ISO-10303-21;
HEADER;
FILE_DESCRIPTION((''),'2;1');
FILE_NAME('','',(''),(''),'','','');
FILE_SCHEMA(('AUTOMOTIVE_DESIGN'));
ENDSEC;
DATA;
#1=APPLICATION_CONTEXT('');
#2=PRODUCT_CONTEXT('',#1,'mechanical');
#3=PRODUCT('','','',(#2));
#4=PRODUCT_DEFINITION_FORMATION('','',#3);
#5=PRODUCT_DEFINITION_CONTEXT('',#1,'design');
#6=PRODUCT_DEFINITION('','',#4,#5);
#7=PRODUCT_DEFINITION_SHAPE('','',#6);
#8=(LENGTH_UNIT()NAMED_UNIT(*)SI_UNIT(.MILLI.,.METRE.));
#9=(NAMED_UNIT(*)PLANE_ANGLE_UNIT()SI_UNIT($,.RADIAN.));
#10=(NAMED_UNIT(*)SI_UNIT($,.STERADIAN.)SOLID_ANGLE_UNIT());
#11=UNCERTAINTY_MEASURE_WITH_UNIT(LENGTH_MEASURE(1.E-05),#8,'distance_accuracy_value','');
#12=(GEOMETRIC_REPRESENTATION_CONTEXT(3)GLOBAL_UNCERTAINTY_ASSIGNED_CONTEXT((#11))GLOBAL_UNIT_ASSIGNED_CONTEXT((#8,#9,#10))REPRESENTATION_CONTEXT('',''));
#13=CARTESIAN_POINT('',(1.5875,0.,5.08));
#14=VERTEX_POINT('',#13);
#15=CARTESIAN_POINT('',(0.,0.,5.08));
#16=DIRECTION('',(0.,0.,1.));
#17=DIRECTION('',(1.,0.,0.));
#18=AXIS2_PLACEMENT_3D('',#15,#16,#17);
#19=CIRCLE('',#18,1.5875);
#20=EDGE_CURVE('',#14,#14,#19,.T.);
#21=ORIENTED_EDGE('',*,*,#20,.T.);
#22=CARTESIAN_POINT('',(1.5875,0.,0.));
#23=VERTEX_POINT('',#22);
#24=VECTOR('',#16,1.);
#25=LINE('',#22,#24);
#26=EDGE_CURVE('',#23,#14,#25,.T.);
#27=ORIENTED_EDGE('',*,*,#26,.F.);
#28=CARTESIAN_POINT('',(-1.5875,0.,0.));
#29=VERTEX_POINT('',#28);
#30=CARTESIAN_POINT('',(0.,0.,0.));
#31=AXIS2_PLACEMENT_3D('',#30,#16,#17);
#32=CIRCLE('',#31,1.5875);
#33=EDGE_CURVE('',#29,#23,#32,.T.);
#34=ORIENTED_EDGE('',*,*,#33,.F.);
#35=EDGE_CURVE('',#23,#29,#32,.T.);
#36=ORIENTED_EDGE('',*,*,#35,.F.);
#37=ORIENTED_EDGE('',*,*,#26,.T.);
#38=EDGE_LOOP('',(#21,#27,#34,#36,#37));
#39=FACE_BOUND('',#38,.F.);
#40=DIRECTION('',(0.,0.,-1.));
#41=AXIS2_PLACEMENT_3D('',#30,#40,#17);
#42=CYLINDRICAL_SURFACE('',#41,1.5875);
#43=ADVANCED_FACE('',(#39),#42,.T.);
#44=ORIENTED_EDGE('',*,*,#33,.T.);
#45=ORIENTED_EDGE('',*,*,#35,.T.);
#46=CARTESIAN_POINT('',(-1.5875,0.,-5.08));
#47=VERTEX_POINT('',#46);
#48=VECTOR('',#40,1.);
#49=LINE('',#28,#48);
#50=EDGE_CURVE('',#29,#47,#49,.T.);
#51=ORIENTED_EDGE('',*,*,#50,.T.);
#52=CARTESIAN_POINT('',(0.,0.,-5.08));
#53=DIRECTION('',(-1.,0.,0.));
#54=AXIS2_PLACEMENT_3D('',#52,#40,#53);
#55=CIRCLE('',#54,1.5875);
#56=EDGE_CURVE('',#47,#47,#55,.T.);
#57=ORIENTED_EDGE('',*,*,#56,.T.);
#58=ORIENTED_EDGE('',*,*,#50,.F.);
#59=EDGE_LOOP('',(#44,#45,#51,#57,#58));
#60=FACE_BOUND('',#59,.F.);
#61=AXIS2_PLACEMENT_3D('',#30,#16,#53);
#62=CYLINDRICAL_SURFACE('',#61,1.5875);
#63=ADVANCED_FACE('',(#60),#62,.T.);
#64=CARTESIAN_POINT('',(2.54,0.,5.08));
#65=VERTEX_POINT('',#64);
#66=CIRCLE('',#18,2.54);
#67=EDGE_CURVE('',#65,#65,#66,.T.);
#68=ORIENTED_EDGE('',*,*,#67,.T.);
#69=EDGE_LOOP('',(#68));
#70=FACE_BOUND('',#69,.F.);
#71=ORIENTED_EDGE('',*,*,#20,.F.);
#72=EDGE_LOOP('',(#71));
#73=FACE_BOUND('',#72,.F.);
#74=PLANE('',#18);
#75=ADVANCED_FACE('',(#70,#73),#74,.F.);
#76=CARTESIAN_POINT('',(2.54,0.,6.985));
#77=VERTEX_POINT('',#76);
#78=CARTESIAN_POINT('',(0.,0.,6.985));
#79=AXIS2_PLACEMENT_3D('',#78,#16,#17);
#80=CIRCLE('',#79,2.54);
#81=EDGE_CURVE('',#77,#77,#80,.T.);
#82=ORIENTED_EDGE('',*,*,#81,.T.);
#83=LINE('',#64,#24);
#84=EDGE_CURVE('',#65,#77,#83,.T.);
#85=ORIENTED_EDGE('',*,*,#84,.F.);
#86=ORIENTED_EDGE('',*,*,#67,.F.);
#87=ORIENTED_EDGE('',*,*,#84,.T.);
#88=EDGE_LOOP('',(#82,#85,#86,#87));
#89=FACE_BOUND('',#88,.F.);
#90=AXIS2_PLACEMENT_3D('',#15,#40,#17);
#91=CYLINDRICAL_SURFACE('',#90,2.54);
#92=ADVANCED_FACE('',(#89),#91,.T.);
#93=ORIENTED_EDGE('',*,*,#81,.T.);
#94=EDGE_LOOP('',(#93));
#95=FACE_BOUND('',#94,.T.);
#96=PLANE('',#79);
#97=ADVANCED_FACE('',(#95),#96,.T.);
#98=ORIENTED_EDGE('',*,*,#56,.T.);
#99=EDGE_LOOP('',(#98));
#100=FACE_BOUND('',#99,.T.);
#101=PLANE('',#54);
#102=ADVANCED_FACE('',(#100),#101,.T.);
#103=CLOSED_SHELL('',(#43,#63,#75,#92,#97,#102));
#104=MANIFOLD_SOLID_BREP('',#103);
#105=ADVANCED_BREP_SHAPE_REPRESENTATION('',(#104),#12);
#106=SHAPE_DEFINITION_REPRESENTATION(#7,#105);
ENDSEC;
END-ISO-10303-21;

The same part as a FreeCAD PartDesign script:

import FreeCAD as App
import Part
import Sketcher
from FreeCAD import Vector
Q = App.Units.Quantity

doc = App.newDocument("Part")
body = doc.addObject("PartDesign::Body", "Body")

# Sketch on XY plane
sketch1 = body.newObject("Sketcher::SketchObject", "Sketch")
sketch1.AttachmentSupport = (doc.getObject("XY_Plane"), [""])
sketch1.MapMode = "FlatFace"
sketch1.addGeometry(Part.Circle(Vector(0, 0, 0), Vector(0, 0, 1), 1.6), False)
sketch1.addConstraint(Sketcher.Constraint("Coincident", 0, 3, -1, 1))
sketch1.addConstraint(Sketcher.Constraint("Diameter", 0, Q("0.125 in")))
pad1 = body.newObject("PartDesign::Pad", "Pad")
pad1.Profile = sketch1
pad1.Length = Q("0.2 in")

# Sketch on XY plane
sketch2 = body.newObject("Sketcher::SketchObject", "Sketch001")
sketch2.AttachmentSupport = (doc.getObject("XY_Plane"), [""])
sketch2.MapMode = "FlatFace"
sketch2.AttachmentOffset = App.Placement(Vector(0, 0, 0.2 * 25.4), App.Rotation())
sketch2.addGeometry(Part.Circle(Vector(0, 0, 0), Vector(0, 0, 1), 2.5), False)
sketch2.addConstraint(Sketcher.Constraint("Coincident", 0, 3, -1, 1))
sketch2.addConstraint(Sketcher.Constraint("Diameter", 0, Q("0.2 in")))
pad2 = body.newObject("PartDesign::Pad", "Pad001")
pad2.Profile = sketch2
pad2.Length = Q("0.075 in")

# Sketch on XY plane
sketch3 = body.newObject("Sketcher::SketchObject", "Sketch002")
sketch3.AttachmentSupport = (doc.getObject("XY_Plane"), [""])
sketch3.MapMode = "FlatFace"
sketch3.addGeometry(Part.Circle(Vector(0, 0, 0), Vector(0, 0, 1), 1.6), False)
sketch3.addConstraint(Sketcher.Constraint("Coincident", 0, 3, -1, 1))
sketch3.addConstraint(Sketcher.Constraint("Diameter", 0, Q("0.125 in")))
pad3 = body.newObject("PartDesign::Pad", "Pad002")
pad3.Profile = sketch3
pad3.Length = Q("0.2 in")
pad3.Reversed = True

doc.recompute()
